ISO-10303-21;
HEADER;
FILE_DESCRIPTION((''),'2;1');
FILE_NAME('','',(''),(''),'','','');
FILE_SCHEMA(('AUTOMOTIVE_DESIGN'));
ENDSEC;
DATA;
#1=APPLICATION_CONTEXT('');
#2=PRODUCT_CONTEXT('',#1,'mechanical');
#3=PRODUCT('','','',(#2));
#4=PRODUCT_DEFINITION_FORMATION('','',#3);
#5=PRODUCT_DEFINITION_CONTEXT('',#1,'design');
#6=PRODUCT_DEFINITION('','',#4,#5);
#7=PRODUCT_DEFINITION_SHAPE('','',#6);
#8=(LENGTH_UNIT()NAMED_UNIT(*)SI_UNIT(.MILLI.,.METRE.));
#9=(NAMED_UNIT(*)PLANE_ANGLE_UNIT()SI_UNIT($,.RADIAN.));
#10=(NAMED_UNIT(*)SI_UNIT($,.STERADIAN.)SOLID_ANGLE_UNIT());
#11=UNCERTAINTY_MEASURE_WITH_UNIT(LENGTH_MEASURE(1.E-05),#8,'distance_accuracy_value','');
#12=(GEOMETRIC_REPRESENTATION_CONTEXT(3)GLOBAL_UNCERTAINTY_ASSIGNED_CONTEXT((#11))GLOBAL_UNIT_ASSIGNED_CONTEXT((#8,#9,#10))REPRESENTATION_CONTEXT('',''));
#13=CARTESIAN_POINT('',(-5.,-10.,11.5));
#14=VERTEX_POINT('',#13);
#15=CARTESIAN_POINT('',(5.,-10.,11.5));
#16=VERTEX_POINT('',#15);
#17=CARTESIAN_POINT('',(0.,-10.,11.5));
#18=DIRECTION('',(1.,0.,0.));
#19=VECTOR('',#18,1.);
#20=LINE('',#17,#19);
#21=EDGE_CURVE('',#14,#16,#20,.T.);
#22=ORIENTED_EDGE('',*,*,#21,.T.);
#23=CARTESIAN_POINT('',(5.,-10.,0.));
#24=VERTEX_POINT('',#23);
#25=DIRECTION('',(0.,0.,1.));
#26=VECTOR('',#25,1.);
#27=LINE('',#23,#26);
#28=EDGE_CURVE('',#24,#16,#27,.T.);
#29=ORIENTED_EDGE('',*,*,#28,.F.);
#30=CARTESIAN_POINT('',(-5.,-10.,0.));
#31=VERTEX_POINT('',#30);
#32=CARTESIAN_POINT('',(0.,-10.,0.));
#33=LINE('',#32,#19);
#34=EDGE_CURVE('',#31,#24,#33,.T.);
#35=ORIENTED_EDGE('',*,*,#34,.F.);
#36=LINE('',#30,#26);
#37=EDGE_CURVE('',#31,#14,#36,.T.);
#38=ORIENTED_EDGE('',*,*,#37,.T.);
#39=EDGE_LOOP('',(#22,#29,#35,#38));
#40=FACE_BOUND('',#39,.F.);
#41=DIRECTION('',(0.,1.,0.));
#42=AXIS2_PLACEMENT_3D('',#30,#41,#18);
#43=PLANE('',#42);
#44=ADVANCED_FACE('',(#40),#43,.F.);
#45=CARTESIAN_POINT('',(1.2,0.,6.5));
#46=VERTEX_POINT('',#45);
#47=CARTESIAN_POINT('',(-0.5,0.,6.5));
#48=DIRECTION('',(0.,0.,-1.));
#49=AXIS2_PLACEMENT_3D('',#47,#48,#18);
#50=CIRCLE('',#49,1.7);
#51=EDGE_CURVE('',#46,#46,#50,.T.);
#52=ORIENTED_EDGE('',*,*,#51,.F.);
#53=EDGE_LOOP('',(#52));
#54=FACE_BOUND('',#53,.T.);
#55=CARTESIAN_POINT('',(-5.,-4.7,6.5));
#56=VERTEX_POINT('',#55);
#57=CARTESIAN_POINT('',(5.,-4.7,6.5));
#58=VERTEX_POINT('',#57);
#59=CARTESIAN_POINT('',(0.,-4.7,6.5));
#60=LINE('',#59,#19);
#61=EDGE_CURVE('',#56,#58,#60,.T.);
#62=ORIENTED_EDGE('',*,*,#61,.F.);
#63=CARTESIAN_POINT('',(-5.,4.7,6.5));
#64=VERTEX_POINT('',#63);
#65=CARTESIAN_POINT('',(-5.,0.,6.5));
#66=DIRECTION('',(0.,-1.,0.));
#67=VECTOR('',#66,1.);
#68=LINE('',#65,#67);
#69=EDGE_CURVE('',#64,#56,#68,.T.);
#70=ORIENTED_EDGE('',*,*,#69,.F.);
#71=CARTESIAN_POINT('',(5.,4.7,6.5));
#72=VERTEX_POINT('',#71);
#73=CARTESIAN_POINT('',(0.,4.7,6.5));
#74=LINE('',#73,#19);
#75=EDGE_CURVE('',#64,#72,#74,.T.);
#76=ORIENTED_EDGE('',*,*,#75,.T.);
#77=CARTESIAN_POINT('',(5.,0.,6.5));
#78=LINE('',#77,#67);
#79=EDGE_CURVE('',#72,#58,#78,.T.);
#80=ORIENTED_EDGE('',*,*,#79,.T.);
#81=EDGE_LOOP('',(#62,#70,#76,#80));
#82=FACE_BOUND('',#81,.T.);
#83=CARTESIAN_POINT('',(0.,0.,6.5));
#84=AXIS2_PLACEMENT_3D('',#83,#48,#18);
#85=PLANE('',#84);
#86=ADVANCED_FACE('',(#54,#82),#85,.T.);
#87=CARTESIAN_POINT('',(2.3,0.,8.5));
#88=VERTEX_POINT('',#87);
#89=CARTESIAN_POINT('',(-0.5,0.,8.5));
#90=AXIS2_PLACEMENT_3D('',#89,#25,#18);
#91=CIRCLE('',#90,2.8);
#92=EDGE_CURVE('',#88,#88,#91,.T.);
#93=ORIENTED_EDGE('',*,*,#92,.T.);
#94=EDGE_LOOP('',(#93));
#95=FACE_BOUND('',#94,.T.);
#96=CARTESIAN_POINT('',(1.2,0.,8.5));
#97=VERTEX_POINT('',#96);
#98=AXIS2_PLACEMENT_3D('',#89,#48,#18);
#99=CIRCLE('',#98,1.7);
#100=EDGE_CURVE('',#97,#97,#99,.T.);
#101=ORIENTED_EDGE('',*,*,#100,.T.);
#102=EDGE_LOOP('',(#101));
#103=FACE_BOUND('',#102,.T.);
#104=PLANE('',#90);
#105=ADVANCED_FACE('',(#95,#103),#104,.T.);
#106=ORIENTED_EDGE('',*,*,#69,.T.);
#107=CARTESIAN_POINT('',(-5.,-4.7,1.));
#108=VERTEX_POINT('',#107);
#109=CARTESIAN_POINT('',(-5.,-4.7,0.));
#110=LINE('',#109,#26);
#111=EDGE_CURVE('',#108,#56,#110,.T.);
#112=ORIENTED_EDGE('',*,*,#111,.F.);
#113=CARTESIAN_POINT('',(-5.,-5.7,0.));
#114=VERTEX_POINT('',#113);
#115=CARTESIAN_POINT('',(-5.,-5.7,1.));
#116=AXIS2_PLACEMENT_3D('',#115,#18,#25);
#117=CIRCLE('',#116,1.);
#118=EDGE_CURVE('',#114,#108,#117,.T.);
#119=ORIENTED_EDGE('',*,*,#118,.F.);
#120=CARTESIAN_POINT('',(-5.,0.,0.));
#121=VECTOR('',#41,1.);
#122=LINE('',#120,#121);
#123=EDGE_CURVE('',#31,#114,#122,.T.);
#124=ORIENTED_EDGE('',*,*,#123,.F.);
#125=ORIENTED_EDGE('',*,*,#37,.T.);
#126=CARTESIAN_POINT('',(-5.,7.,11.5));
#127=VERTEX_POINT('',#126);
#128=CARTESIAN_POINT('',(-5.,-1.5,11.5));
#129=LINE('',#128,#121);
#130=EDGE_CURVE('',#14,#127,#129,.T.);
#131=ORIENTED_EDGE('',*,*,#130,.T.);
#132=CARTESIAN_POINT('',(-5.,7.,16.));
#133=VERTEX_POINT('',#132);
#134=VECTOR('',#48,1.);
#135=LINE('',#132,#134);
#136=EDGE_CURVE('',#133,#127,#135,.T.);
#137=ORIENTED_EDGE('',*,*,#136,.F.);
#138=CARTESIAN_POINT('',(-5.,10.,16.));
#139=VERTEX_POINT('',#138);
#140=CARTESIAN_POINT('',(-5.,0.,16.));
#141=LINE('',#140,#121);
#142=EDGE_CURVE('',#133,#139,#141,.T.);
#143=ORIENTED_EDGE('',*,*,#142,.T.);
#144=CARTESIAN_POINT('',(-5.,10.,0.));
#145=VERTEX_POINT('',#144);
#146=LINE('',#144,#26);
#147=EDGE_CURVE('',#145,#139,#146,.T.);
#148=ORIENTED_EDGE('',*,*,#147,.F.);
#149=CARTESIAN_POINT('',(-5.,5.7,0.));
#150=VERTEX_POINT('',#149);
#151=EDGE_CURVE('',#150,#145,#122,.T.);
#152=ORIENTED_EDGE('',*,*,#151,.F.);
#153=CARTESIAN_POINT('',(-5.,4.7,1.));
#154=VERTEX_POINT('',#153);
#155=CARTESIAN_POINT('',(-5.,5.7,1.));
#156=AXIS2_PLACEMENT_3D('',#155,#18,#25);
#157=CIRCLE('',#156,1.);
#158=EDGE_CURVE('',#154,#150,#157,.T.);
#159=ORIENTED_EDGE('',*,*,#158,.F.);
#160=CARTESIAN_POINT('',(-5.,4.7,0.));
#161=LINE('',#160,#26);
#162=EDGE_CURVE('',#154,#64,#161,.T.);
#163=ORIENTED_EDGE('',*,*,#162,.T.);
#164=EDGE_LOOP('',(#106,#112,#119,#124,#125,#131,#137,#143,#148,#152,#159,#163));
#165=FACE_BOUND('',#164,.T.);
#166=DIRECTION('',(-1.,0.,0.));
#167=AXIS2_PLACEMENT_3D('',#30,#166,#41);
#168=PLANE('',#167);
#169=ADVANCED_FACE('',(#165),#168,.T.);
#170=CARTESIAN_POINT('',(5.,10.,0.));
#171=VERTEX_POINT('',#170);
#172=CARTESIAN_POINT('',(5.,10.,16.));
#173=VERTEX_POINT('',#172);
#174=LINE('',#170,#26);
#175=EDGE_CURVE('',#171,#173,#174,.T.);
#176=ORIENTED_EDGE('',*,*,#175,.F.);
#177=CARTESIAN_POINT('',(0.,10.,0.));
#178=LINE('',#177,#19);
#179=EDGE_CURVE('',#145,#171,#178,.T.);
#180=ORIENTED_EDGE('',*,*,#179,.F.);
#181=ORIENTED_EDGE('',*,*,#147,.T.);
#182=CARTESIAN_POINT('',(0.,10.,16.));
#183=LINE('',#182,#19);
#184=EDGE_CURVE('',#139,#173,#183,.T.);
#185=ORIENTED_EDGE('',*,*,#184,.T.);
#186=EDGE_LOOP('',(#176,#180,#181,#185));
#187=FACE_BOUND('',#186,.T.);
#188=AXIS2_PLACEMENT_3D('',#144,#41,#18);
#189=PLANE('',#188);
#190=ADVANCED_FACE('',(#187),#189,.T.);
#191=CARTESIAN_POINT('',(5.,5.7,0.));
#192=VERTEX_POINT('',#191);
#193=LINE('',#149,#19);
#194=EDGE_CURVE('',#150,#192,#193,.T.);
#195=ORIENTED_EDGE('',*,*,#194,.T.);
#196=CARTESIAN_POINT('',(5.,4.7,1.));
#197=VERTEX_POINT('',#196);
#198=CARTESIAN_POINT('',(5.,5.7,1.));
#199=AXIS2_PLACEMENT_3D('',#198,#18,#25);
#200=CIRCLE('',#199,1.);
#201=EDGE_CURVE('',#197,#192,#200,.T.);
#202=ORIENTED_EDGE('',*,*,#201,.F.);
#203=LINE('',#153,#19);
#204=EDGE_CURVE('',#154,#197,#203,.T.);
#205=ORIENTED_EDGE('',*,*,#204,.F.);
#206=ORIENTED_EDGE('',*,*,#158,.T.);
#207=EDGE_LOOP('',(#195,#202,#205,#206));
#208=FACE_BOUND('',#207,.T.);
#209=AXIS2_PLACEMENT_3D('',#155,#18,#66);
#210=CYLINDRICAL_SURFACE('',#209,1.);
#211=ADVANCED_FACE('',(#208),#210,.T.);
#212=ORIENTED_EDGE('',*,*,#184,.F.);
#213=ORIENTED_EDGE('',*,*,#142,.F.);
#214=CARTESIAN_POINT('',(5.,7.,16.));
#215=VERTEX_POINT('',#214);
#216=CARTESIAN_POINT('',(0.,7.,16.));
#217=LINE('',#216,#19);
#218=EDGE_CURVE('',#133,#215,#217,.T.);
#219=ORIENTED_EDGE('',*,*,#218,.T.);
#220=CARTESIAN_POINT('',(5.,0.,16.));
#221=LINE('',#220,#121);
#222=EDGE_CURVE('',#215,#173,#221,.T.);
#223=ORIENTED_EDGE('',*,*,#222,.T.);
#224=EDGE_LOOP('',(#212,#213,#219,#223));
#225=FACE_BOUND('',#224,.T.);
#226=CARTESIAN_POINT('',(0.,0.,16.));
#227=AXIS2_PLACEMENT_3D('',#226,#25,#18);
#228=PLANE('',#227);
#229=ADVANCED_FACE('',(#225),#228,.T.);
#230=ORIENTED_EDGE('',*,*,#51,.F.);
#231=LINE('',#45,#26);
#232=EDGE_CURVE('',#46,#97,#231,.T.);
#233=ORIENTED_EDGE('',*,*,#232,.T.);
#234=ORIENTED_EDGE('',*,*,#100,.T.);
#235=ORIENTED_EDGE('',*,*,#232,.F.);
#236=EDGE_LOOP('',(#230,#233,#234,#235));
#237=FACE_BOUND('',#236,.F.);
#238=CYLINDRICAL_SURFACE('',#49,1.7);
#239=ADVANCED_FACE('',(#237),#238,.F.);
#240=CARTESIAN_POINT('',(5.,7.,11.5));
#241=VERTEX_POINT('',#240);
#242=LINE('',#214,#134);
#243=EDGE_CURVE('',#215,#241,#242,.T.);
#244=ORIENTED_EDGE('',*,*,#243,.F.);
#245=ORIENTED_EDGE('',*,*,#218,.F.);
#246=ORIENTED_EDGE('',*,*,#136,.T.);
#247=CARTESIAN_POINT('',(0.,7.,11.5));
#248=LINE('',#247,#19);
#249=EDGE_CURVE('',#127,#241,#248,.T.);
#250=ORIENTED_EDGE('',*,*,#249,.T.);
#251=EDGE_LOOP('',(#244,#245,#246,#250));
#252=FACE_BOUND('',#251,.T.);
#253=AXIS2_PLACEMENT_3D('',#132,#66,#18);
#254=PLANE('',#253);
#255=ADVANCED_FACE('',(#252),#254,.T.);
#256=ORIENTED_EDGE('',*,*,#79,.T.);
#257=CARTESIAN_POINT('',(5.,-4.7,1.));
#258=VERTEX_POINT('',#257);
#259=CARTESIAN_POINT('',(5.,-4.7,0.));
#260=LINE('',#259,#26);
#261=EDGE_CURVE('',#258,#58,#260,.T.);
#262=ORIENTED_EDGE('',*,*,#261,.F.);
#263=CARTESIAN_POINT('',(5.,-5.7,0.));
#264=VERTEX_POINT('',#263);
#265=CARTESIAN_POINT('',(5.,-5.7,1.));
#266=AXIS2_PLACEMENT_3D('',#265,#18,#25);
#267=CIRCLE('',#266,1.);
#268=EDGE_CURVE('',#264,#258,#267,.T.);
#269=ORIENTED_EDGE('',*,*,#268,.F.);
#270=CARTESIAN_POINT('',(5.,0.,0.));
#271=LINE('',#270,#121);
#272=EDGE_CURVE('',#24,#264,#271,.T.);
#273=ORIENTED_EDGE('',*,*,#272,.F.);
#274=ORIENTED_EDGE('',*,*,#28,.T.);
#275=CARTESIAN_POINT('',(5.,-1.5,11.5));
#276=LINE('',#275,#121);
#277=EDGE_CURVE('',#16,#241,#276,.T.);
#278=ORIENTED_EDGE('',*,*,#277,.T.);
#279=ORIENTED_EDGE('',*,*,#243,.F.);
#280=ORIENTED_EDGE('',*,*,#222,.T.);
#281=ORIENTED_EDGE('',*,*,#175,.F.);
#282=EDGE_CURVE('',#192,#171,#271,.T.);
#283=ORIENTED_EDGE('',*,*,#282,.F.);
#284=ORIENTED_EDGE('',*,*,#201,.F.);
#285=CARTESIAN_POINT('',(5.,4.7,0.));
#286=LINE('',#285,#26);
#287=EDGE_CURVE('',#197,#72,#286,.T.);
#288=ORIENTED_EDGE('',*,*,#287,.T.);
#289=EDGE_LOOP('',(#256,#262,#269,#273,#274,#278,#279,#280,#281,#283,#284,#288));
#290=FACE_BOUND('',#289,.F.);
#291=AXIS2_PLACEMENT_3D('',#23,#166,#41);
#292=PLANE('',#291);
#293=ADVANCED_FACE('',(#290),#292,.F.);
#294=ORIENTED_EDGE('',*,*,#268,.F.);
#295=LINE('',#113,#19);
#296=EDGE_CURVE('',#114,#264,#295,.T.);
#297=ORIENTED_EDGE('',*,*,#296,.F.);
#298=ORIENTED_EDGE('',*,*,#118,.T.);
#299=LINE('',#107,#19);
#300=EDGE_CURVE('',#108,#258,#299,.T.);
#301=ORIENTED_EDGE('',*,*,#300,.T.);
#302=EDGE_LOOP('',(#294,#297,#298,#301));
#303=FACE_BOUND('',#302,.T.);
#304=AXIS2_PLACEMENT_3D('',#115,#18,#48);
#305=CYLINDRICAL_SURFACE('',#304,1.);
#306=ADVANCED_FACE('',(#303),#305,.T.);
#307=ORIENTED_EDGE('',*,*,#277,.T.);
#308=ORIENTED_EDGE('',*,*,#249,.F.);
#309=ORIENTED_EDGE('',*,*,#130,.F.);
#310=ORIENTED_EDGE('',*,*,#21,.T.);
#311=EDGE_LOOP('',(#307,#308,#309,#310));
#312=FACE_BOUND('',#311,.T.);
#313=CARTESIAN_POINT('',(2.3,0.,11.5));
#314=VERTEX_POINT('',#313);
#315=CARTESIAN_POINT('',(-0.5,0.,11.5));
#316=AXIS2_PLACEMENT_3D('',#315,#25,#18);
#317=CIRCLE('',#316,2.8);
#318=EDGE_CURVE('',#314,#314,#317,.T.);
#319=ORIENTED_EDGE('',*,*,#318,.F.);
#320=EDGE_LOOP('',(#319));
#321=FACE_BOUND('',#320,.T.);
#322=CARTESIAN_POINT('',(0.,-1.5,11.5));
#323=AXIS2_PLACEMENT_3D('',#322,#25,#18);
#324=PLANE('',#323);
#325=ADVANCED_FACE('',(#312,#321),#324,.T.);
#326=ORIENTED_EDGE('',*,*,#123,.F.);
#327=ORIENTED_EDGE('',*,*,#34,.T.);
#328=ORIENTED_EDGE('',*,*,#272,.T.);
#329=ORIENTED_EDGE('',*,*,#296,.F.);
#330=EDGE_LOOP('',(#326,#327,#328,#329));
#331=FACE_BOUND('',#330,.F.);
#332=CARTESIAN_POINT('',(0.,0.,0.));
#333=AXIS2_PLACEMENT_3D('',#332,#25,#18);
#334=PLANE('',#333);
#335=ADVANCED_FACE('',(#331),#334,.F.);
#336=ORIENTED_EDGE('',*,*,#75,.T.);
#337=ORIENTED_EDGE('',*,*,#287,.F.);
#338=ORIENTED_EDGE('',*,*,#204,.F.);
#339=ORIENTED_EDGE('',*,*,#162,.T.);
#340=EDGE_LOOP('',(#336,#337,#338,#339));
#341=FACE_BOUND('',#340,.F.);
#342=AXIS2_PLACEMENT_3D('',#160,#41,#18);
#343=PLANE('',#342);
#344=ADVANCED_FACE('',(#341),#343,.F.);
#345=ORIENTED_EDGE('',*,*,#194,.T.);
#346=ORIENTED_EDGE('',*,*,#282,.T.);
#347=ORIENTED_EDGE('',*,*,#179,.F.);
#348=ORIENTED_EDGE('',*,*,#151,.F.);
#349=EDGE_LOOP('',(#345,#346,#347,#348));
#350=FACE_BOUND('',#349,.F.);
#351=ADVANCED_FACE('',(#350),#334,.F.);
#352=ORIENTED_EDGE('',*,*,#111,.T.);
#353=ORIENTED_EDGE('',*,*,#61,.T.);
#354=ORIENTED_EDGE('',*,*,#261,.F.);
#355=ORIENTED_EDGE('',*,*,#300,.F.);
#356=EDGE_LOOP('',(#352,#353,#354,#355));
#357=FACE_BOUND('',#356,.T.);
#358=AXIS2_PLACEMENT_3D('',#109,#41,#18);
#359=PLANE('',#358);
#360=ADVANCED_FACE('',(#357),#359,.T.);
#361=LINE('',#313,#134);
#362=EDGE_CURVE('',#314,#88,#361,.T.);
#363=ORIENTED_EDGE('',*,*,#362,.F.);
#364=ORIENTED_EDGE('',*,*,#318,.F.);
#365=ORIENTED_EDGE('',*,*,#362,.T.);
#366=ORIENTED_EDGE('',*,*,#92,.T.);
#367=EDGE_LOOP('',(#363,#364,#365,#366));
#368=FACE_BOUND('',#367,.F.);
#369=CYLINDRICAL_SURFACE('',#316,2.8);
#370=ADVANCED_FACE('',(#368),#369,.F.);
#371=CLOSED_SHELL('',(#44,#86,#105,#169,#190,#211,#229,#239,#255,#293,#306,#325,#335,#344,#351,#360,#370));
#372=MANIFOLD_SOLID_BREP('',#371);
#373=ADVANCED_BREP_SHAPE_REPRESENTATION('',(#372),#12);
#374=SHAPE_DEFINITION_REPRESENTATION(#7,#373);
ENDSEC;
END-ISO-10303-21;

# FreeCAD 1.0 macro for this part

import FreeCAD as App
import Part
import Sketcher
from FreeCAD import Vector
Q = App.Units.Quantity


def edges_at(feature, points):
    """Names of the edges that pass closest to the given points."""
    edges = feature.Shape.Edges
    near = lambda p: min(range(len(edges)), key=lambda i: edges[i].distToShape(Part.Vertex(*p))[0])
    return sorted({f"Edge{near(p) + 1}" for p in points})

doc = App.newDocument("Part")
body = doc.addObject("PartDesign::Body", "Body")

sketch1 = body.newObject("Sketcher::SketchObject", "Sketch")
sketch1.AttachmentSupport = (doc.getObject("XY_Plane"), [""])
sketch1.MapMode = "FlatFace"
sketch1.addGeometry([
    Part.LineSegment(Vector(-5, 10, 0), Vector(-5, -10, 0)),
    Part.LineSegment(Vector(-5, -10, 0), Vector(5, -10, 0)),
    Part.LineSegment(Vector(5, -10, 0), Vector(5, 10, 0)),
    Part.LineSegment(Vector(5, 10, 0), Vector(-5, 10, 0)),
], False)
sketch1.addConstraint([
    Sketcher.Constraint("Coincident", 0, 2, 1, 1),
    Sketcher.Constraint("Coincident", 1, 2, 2, 1),
    Sketcher.Constraint("Coincident", 2, 2, 3, 1),
    Sketcher.Constraint("Coincident", 3, 2, 0, 1),
    Sketcher.Constraint("Vertical", 0),
    Sketcher.Constraint("Horizontal", 1),
    Sketcher.Constraint("Vertical", 2),
    Sketcher.Constraint("Horizontal", 3),
    Sketcher.Constraint("Symmetric", 0, 2, 2, 2, -1, 1),
    Sketcher.Constraint("DistanceX", 1, 1, 1, 2, Q("10 mm")),
    Sketcher.Constraint("DistanceY", 0, 2, 0, 1, Q("20 mm")),
])
pad1 = body.newObject("PartDesign::Pad", "Pad")
pad1.Profile = sketch1
pad1.Length = 16

sketch2 = body.newObject("Sketcher::SketchObject", "Sketch001")
sketch2.AttachmentSupport = (doc.getObject("XY_Plane"), [""])
sketch2.MapMode = "FlatFace"
sketch2.AttachmentOffset = App.Placement(Vector(0, 0, 16), App.Rotation())
sketch2.addGeometry([
    Part.LineSegment(Vector(-5, 7, 0), Vector(-5, -10, 0)),
    Part.LineSegment(Vector(-5, -10, 0), Vector(5, -10, 0)),
    Part.LineSegment(Vector(5, -10, 0), Vector(5, 7, 0)),
    Part.LineSegment(Vector(5, 7, 0), Vector(-5, 7, 0)),
], False)
sketch2.addConstraint([
    Sketcher.Constraint("Coincident", 0, 2, 1, 1),
    Sketcher.Constraint("Coincident", 1, 2, 2, 1),
    Sketcher.Constraint("Coincident", 2, 2, 3, 1),
    Sketcher.Constraint("Coincident", 3, 2, 0, 1),
    Sketcher.Constraint("Vertical", 0),
    Sketcher.Constraint("Horizontal", 1),
    Sketcher.Constraint("Vertical", 2),
    Sketcher.Constraint("Horizontal", 3),
    Sketcher.Constraint("DistanceX", 1, 1, 1, 2, Q("10 mm")),
    Sketcher.Constraint("DistanceY", 0, 2, 0, 1, Q("17 mm")),
    Sketcher.Constraint("DistanceX", 0, 2, -1, 1, Q("5 mm")),
    Sketcher.Constraint("DistanceY", 0, 2, -1, 1, Q("10 mm")),
])
pocket1 = body.newObject("PartDesign::Pocket", "Pocket")
pocket1.Profile = sketch2
pocket1.Length = 4.5

sketch3 = body.newObject("Sketcher::SketchObject", "Sketch002")
sketch3.AttachmentSupport = (doc.getObject("XY_Plane"), [""])
sketch3.MapMode = "FlatFace"
sketch3.addGeometry([
    Part.LineSegment(Vector(-5, -5, 0), Vector(-5, 5, 0)),
    Part.LineSegment(Vector(-5, 5, 0), Vector(5, 5, 0)),
    Part.LineSegment(Vector(5, 5, 0), Vector(5, -5, 0)),
    Part.LineSegment(Vector(5, -5, 0), Vector(-5, -5, 0)),
], False)
sketch3.addConstraint([
    Sketcher.Constraint("Coincident", 0, 2, 1, 1),
    Sketcher.Constraint("Coincident", 1, 2, 2, 1),
    Sketcher.Constraint("Coincident", 2, 2, 3, 1),
    Sketcher.Constraint("Coincident", 3, 2, 0, 1),
    Sketcher.Constraint("Vertical", 0),
    Sketcher.Constraint("Horizontal", 1),
    Sketcher.Constraint("Vertical", 2),
    Sketcher.Constraint("Horizontal", 3),
    Sketcher.Constraint("Symmetric", 0, 2, 2, 2, -1, 1),
    Sketcher.Constraint("DistanceX", 1, 1, 1, 2, Q("10 mm")),
    Sketcher.Constraint("DistanceY", 0, 1, 0, 2, Q("9.4 mm")),
])
pocket2 = body.newObject("PartDesign::Pocket", "Pocket001")
pocket2.Profile = sketch3
pocket2.Length = 6.5
pocket2.Reversed = True

sketch4 = body.newObject("Sketcher::SketchObject", "Sketch003")
sketch4.AttachmentSupport = (doc.getObject("XY_Plane"), [""])
sketch4.MapMode = "FlatFace"
sketch4.AttachmentOffset = App.Placement(Vector(0, 0, 6.5), App.Rotation())
sketch4.addGeometry(Part.Circle(Vector(-0.5, 0, 0), Vector(0, 0, 1), 1.7), False)
sketch4.addConstraint([
    Sketcher.Constraint("PointOnObject", 0, 3, -1),
    Sketcher.Constraint("Diameter", 0, Q("3.4 mm")),
    Sketcher.Constraint("DistanceX", 0, 3, -1, 1, Q("0.5 mm")),
])
pocket3 = body.newObject("PartDesign::Pocket", "Pocket002")
pocket3.Profile = sketch4
pocket3.Length = 5
pocket3.Reversed = True

sketch5 = body.newObject("Sketcher::SketchObject", "Sketch004")
sketch5.AttachmentSupport = (doc.getObject("XY_Plane"), [""])
sketch5.MapMode = "FlatFace"
sketch5.AttachmentOffset = App.Placement(Vector(0, 0, 11.5), App.Rotation())
sketch5.addGeometry(Part.Circle(Vector(-0.5, 0, 0), Vector(0, 0, 1), 2.8), False)
sketch5.addConstraint([
    Sketcher.Constraint("PointOnObject", 0, 3, -1),
    Sketcher.Constraint("Diameter", 0, Q("5.6 mm")),
    Sketcher.Constraint("DistanceX", 0, 3, -1, 1, Q("0.5 mm")),
])
pocket4 = body.newObject("PartDesign::Pocket", "Pocket003")
pocket4.Profile = sketch5
pocket4.Length = 3
doc.recompute()

fillet = body.newObject("PartDesign::Fillet", "Fillet")
fillet.Base = (pocket4, edges_at(pocket4, [(0, -4.7, 0)]))
fillet.Radius = 1
doc.recompute()

fillet2 = body.newObject("PartDesign::Fillet", "Fillet001")
fillet2.Base = (fillet, edges_at(fillet, [(0, 4.7, 0)]))
fillet2.Radius = 1

doc.recompute()
